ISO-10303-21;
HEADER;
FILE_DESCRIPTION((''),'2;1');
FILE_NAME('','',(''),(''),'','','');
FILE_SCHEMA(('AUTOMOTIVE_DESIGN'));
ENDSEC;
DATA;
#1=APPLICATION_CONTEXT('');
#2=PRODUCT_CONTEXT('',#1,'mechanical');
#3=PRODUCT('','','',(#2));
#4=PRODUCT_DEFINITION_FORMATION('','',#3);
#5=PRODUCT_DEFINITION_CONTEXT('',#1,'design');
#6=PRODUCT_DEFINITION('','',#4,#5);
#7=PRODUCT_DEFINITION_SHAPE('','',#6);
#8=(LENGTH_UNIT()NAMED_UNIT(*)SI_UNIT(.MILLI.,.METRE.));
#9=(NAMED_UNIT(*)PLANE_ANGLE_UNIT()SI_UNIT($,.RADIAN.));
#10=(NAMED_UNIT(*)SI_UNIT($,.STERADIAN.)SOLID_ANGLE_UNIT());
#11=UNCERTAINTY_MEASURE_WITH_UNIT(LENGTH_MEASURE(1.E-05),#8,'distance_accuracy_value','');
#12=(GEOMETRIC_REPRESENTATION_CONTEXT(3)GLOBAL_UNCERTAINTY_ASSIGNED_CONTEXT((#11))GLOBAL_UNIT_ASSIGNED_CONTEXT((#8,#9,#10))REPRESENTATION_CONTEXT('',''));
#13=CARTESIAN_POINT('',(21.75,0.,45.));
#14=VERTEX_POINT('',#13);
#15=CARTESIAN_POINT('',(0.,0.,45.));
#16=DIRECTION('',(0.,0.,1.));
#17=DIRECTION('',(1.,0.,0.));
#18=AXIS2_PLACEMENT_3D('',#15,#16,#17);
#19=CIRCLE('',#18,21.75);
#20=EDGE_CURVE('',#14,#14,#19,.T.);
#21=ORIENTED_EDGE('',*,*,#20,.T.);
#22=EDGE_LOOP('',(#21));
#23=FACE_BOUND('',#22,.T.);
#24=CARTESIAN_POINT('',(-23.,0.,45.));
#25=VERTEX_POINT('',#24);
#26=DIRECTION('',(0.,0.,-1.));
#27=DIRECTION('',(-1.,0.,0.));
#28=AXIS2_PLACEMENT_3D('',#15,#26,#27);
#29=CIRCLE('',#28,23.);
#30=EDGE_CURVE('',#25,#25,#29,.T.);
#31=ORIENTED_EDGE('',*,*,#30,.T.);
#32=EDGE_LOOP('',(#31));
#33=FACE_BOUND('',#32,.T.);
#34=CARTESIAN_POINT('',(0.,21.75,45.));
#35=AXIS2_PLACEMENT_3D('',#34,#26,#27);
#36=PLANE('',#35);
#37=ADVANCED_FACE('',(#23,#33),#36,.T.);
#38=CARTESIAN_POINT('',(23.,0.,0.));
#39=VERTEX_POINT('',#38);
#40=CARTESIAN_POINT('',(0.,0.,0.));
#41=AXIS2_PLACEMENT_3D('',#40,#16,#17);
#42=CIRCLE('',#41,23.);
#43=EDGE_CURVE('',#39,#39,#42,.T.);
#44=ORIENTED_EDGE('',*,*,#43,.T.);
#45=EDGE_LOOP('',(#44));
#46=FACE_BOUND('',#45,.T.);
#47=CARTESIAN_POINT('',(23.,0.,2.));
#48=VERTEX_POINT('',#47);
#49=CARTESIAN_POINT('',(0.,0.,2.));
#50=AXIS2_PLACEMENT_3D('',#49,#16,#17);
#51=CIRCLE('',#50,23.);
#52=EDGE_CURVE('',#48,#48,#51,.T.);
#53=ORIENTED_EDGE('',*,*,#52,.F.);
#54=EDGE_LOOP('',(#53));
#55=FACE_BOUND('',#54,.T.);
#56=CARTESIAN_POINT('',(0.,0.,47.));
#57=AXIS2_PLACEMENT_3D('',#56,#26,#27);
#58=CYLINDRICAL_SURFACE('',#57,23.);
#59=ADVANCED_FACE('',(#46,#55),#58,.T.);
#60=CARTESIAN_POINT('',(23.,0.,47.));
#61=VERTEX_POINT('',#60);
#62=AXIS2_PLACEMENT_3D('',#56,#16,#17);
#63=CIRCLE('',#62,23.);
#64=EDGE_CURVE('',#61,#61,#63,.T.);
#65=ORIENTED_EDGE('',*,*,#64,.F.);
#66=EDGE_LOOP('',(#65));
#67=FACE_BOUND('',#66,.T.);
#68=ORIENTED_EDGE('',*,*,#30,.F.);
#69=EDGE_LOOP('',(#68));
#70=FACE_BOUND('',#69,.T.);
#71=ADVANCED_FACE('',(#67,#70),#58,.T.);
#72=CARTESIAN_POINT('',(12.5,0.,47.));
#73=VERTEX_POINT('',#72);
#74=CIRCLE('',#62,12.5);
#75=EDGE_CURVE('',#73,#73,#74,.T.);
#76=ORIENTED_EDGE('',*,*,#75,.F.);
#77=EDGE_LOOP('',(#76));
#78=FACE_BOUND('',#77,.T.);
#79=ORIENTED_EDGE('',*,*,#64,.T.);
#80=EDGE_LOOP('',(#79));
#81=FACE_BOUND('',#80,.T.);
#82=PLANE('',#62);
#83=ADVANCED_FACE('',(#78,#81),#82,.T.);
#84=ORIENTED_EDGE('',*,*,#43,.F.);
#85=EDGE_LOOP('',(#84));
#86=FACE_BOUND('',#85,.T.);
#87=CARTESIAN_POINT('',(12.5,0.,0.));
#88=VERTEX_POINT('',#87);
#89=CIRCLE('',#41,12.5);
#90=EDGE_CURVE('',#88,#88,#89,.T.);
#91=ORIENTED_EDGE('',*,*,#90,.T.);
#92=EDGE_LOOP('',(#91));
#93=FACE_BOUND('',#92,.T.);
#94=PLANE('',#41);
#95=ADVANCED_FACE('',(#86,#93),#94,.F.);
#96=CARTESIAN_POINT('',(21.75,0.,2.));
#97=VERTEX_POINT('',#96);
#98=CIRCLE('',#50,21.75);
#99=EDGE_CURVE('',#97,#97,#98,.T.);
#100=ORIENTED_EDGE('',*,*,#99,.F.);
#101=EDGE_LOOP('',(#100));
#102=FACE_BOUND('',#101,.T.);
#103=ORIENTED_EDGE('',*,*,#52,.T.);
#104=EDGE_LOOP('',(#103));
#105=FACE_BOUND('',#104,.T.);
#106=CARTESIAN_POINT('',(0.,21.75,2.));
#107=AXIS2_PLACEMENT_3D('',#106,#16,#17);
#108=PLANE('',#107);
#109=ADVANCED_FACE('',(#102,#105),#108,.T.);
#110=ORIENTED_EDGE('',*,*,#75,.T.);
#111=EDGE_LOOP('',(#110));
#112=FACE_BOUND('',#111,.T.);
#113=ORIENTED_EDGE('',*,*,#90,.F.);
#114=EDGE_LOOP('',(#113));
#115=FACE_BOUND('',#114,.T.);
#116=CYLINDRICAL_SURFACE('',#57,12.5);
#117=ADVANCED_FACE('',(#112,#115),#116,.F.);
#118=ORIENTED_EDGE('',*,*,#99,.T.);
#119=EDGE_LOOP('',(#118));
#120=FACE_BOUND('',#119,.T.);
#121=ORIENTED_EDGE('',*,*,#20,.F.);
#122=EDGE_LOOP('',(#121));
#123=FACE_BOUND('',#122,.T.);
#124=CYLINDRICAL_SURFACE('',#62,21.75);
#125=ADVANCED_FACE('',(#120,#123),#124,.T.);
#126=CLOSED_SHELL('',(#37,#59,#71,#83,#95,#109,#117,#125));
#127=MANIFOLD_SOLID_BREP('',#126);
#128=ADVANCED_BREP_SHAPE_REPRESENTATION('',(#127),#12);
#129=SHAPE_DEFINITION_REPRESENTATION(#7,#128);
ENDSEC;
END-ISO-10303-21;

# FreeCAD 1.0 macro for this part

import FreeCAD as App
import Part
import Sketcher
from FreeCAD import Vector

doc = App.newDocument("Part")
body = doc.addObject("PartDesign::Body", "Body")

# Sketch on XY plane
sketch1 = doc.addObject("Sketcher::SketchObject", "Sketch")
body.addObject(sketch1)
sketch1.AttachmentSupport = (doc.XY_Plane, [""])
sketch1.MapMode = "FlatFace"
sketch1.addGeometry([
    Part.Circle(Vector(0, 0, 0), Vector(0, 0, 1), 23),
    Part.Circle(Vector(0, 0, 0), Vector(0, 0, 1), 12),
], False)
sketch1.addConstraint([
    Sketcher.Constraint("Coincident", 0, 3, -1, 1),
    Sketcher.Constraint("Coincident", 1, 3, -1, 1),
    Sketcher.Constraint("Diameter", 0, 46.0),
    Sketcher.Constraint("Diameter", 1, 25.0),
])
pad1 = doc.addObject("PartDesign::Pad", "Pad")
body.addObject(pad1)
pad1.Profile = sketch1
pad1.Length = 47

# Sketch on YZ plane
sketch2 = doc.addObject("Sketcher::SketchObject", "Sketch001")
body.addObject(sketch2)
sketch2.AttachmentSupport = (doc.YZ_Plane, [""])
sketch2.MapMode = "FlatFace"
sketch2.addGeometry([
    Part.LineSegment(Vector(24.2, 45, 0), Vector(21.8, 45, 0)),
    Part.LineSegment(Vector(21.8, 45, 0), Vector(21.8, 2, 0)),
    Part.LineSegment(Vector(21.8, 2, 0), Vector(24.2, 2, 0)),
    Part.LineSegment(Vector(24.2, 2, 0), Vector(24.2, 45, 0)),
], False)
sketch2.addConstraint([
    Sketcher.Constraint("Coincident", 0, 2, 1, 1),
    Sketcher.Constraint("Coincident", 1, 2, 2, 1),
    Sketcher.Constraint("Coincident", 2, 2, 3, 1),
    Sketcher.Constraint("Coincident", 3, 2, 0, 1),
    Sketcher.Constraint("Horizontal", 0),
    Sketcher.Constraint("Vertical", 1),
    Sketcher.Constraint("Horizontal", 2),
    Sketcher.Constraint("Vertical", 3),
    Sketcher.Constraint("DistanceY", 1, 2, 1, 1, 43.0),
    Sketcher.Constraint("DistanceX", 0, 2, 0, 1, 2.5),
    Sketcher.Constraint("DistanceY", -1, 1, 0, 2, 45.0),
    Sketcher.Constraint("DistanceX", -1, 1, 0, 2, 21.75),
])
groove = doc.addObject("PartDesign::Groove", "Groove")
body.addObject(groove)
groove.Profile = sketch2
groove.ReferenceAxis = (sketch2, ["V_Axis"])
groove.Angle = 360

doc.recompute()
